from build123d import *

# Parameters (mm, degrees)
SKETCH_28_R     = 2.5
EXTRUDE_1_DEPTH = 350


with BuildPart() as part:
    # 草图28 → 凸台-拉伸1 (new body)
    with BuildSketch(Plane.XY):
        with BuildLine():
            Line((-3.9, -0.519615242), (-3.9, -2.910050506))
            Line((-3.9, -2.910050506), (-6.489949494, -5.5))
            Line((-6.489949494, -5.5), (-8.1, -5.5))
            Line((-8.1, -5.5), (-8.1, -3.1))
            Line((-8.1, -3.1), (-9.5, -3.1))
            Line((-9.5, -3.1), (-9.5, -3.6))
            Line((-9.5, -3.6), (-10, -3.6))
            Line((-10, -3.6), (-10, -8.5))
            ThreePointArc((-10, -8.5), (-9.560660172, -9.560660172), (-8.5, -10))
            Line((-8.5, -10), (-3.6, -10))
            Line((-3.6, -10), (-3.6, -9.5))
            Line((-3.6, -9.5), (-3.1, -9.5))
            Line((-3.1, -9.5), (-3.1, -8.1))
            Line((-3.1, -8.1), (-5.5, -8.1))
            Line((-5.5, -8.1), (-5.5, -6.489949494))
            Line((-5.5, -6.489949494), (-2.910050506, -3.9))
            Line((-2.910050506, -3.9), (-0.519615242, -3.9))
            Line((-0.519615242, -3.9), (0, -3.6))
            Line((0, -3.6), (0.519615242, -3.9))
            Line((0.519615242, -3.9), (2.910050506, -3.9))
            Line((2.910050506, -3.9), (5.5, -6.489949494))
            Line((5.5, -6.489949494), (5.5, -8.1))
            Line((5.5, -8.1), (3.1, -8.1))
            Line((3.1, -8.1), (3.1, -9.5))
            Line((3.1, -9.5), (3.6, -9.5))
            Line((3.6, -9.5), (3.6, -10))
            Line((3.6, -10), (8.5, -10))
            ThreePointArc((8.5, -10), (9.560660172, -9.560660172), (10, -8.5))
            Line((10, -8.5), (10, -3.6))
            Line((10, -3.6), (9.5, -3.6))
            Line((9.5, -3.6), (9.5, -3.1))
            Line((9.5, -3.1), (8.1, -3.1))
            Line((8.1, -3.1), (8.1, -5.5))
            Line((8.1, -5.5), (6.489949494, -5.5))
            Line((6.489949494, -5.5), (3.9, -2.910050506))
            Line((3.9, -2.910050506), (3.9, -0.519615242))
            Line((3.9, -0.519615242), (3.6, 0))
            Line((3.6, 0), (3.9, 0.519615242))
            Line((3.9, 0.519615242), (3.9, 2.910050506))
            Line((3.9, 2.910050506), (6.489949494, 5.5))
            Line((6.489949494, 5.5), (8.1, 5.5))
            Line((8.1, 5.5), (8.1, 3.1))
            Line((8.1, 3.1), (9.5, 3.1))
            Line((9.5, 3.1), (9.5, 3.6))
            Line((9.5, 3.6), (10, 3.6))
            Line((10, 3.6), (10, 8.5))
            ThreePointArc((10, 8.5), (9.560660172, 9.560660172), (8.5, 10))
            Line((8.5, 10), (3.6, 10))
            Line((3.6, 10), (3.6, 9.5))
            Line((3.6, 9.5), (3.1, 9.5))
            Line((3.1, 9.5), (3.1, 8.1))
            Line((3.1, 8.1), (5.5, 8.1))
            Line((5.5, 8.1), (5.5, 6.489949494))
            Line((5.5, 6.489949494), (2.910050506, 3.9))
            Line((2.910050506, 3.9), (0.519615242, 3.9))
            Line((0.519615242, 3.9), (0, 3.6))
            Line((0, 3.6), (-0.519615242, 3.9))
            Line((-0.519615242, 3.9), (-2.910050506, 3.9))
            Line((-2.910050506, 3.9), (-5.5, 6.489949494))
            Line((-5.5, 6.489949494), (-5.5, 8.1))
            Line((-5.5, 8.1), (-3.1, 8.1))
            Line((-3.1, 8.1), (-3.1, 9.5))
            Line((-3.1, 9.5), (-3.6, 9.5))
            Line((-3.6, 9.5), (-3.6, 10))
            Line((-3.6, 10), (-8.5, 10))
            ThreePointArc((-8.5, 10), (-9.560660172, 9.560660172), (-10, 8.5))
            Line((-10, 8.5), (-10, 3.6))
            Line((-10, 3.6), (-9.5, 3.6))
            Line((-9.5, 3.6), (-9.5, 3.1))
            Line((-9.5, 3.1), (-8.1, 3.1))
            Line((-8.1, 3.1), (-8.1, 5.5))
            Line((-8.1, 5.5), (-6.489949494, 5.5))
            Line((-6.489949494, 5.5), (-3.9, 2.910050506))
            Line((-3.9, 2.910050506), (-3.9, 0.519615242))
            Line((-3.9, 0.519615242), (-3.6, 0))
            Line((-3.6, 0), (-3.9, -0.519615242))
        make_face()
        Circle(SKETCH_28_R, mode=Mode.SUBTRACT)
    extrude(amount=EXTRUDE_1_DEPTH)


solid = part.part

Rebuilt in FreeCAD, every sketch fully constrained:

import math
import FreeCAD as App
import Part
import Sketcher
Q = App.Units.Quantity

doc = App.newDocument("Part")
body = doc.addObject("PartDesign::Body", "Body")

# Sketch on XY plane
sketch1 = doc.addObject("Sketcher::SketchObject", "Sketch")
body.addObject(sketch1)
sketch1.AttachmentSupport = (doc.XY_Plane, [""])
sketch1.MapMode = "FlatFace"
sketch1.addGeometry([
    Part.LineSegment(App.Vector(-3.9, -0.519615, 0), App.Vector(-3.9, -2.910051, 0)),  # 0
    Part.LineSegment(App.Vector(-3.9, -2.910051, 0), App.Vector(-6.489949, -5.5, 0)),  # 1
    Part.LineSegment(App.Vector(-6.489949, -5.5, 0), App.Vector(-8.1, -5.5, 0)),  # 2
    Part.LineSegment(App.Vector(-8.1, -5.5, 0), App.Vector(-8.1, -3.1, 0)),  # 3
    Part.LineSegment(App.Vector(-8.1, -3.1, 0), App.Vector(-9.5, -3.1, 0)),  # 4
    Part.LineSegment(App.Vector(-9.5, -3.1, 0), App.Vector(-9.5, -3.6, 0)),  # 5
    Part.LineSegment(App.Vector(-9.5, -3.6, 0), App.Vector(-10, -3.6, 0)),  # 6
    Part.LineSegment(App.Vector(-10, -3.6, 0), App.Vector(-10, -8.5, 0)),  # 7
    Part.ArcOfCircle(Part.Circle(App.Vector(-8.5, -8.5, 0), App.Vector(0, 0, 1), 1.5), math.radians(180), math.radians(270)),  # 8
    Part.LineSegment(App.Vector(-8.5, -10, 0), App.Vector(-3.6, -10, 0)),  # 9
    Part.LineSegment(App.Vector(-3.6, -10, 0), App.Vector(-3.6, -9.5, 0)),  # 10
    Part.LineSegment(App.Vector(-3.6, -9.5, 0), App.Vector(-3.1, -9.5, 0)),  # 11
    Part.LineSegment(App.Vector(-3.1, -9.5, 0), App.Vector(-3.1, -8.1, 0)),  # 12
    Part.LineSegment(App.Vector(-3.1, -8.1, 0), App.Vector(-5.5, -8.1, 0)),  # 13
    Part.LineSegment(App.Vector(-5.5, -8.1, 0), App.Vector(-5.5, -6.489949, 0)),  # 14
    Part.LineSegment(App.Vector(-5.5, -6.489949, 0), App.Vector(-2.910051, -3.9, 0)),  # 15
    Part.LineSegment(App.Vector(-2.910051, -3.9, 0), App.Vector(-0.519615, -3.9, 0)),  # 16
    Part.LineSegment(App.Vector(-0.519615, -3.9, 0), App.Vector(0, -3.6, 0)),  # 17
    Part.LineSegment(App.Vector(0, -3.6, 0), App.Vector(0.519615, -3.9, 0)),  # 18
    Part.LineSegment(App.Vector(0.519615, -3.9, 0), App.Vector(2.910051, -3.9, 0)),  # 19
    Part.LineSegment(App.Vector(2.910051, -3.9, 0), App.Vector(5.5, -6.489949, 0)),  # 20
    Part.LineSegment(App.Vector(5.5, -6.489949, 0), App.Vector(5.5, -8.1, 0)),  # 21
    Part.LineSegment(App.Vector(5.5, -8.1, 0), App.Vector(3.1, -8.1, 0)),  # 22
    Part.LineSegment(App.Vector(3.1, -8.1, 0), App.Vector(3.1, -9.5, 0)),  # 23
    Part.LineSegment(App.Vector(3.1, -9.5, 0), App.Vector(3.6, -9.5, 0)),  # 24
    Part.LineSegment(App.Vector(3.6, -9.5, 0), App.Vector(3.6, -10, 0)),  # 25
    Part.LineSegment(App.Vector(3.6, -10, 0), App.Vector(8.5, -10, 0)),  # 26
    Part.ArcOfCircle(Part.Circle(App.Vector(8.5, -8.5, 0), App.Vector(0, 0, 1), 1.5), math.radians(-90), math.radians(0)),  # 27
    Part.LineSegment(App.Vector(10, -8.5, 0), App.Vector(10, -3.6, 0)),  # 28
    Part.LineSegment(App.Vector(10, -3.6, 0), App.Vector(9.5, -3.6, 0)),  # 29
    Part.LineSegment(App.Vector(9.5, -3.6, 0), App.Vector(9.5, -3.1, 0)),  # 30
    Part.LineSegment(App.Vector(9.5, -3.1, 0), App.Vector(8.1, -3.1, 0)),  # 31
    Part.LineSegment(App.Vector(8.1, -3.1, 0), App.Vector(8.1, -5.5, 0)),  # 32
    Part.LineSegment(App.Vector(8.1, -5.5, 0), App.Vector(6.489949, -5.5, 0)),  # 33
    Part.LineSegment(App.Vector(6.489949, -5.5, 0), App.Vector(3.9, -2.910051, 0)),  # 34
    Part.LineSegment(App.Vector(3.9, -2.910051, 0), App.Vector(3.9, -0.519615, 0)),  # 35
    Part.LineSegment(App.Vector(3.9, -0.519615, 0), App.Vector(3.6, 0, 0)),  # 36
    Part.LineSegment(App.Vector(3.6, 0, 0), App.Vector(3.9, 0.519615, 0)),  # 37
    Part.LineSegment(App.Vector(3.9, 0.519615, 0), App.Vector(3.9, 2.910051, 0)),  # 38
    Part.LineSegment(App.Vector(3.9, 2.910051, 0), App.Vector(6.489949, 5.5, 0)),  # 39
    Part.LineSegment(App.Vector(6.489949, 5.5, 0), App.Vector(8.1, 5.5, 0)),  # 40
    Part.LineSegment(App.Vector(8.1, 5.5, 0), App.Vector(8.1, 3.1, 0)),  # 41
    Part.LineSegment(App.Vector(8.1, 3.1, 0), App.Vector(9.5, 3.1, 0)),  # 42
    Part.LineSegment(App.Vector(9.5, 3.1, 0), App.Vector(9.5, 3.6, 0)),  # 43
    Part.LineSegment(App.Vector(9.5, 3.6, 0), App.Vector(10, 3.6, 0)),  # 44
    Part.LineSegment(App.Vector(10, 3.6, 0), App.Vector(10, 8.5, 0)),  # 45
    Part.ArcOfCircle(Part.Circle(App.Vector(8.5, 8.5, 0), App.Vector(0, 0, 1), 1.5), math.radians(0), math.radians(90)),  # 46
    Part.LineSegment(App.Vector(8.5, 10, 0), App.Vector(3.6, 10, 0)),  # 47
    Part.LineSegment(App.Vector(3.6, 10, 0), App.Vector(3.6, 9.5, 0)),  # 48
    Part.LineSegment(App.Vector(3.6, 9.5, 0), App.Vector(3.1, 9.5, 0)),  # 49
    Part.LineSegment(App.Vector(3.1, 9.5, 0), App.Vector(3.1, 8.1, 0)),  # 50
    Part.LineSegment(App.Vector(3.1, 8.1, 0), App.Vector(5.5, 8.1, 0)),  # 51
    Part.LineSegment(App.Vector(5.5, 8.1, 0), App.Vector(5.5, 6.489949, 0)),  # 52
    Part.LineSegment(App.Vector(5.5, 6.489949, 0), App.Vector(2.910051, 3.9, 0)),  # 53
    Part.LineSegment(App.Vector(2.910051, 3.9, 0), App.Vector(0.519615, 3.9, 0)),  # 54
    Part.LineSegment(App.Vector(0.519615, 3.9, 0), App.Vector(0, 3.6, 0)),  # 55
    Part.LineSegment(App.Vector(0, 3.6, 0), App.Vector(-0.519615, 3.9, 0)),  # 56
    Part.LineSegment(App.Vector(-0.519615, 3.9, 0), App.Vector(-2.910051, 3.9, 0)),  # 57
    Part.LineSegment(App.Vector(-2.910051, 3.9, 0), App.Vector(-5.5, 6.489949, 0)),  # 58
    Part.LineSegment(App.Vector(-5.5, 6.489949, 0), App.Vector(-5.5, 8.1, 0)),  # 59
    Part.LineSegment(App.Vector(-5.5, 8.1, 0), App.Vector(-3.1, 8.1, 0)),  # 60
    Part.LineSegment(App.Vector(-3.1, 8.1, 0), App.Vector(-3.1, 9.5, 0)),  # 61
    Part.LineSegment(App.Vector(-3.1, 9.5, 0), App.Vector(-3.6, 9.5, 0)),  # 62
    Part.LineSegment(App.Vector(-3.6, 9.5, 0), App.Vector(-3.6, 10, 0)),  # 63
    Part.LineSegment(App.Vector(-3.6, 10, 0), App.Vector(-8.5, 10, 0)),  # 64
    Part.ArcOfCircle(Part.Circle(App.Vector(-8.5, 8.5, 0), App.Vector(0, 0, 1), 1.5), math.radians(90), math.radians(180)),  # 65
    Part.LineSegment(App.Vector(-10, 8.5, 0), App.Vector(-10, 3.6, 0)),  # 66
    Part.LineSegment(App.Vector(-10, 3.6, 0), App.Vector(-9.5, 3.6, 0)),  # 67
    Part.LineSegment(App.Vector(-9.5, 3.6, 0), App.Vector(-9.5, 3.1, 0)),  # 68
    Part.LineSegment(App.Vector(-9.5, 3.1, 0), App.Vector(-8.1, 3.1, 0)),  # 69
    Part.LineSegment(App.Vector(-8.1, 3.1, 0), App.Vector(-8.1, 5.5, 0)),  # 70
    Part.LineSegment(App.Vector(-8.1, 5.5, 0), App.Vector(-6.489949, 5.5, 0)),  # 71
    Part.LineSegment(App.Vector(-6.489949, 5.5, 0), App.Vector(-3.9, 2.910051, 0)),  # 72
    Part.LineSegment(App.Vector(-3.9, 2.910051, 0), App.Vector(-3.9, 0.519615, 0)),  # 73
    Part.LineSegment(App.Vector(-3.9, 0.519615, 0), App.Vector(-3.6, 0, 0)),  # 74
    Part.LineSegment(App.Vector(-3.6, 0, 0), App.Vector(-3.9, -0.519615, 0)),  # 75
    Part.Circle(App.Vector(0, 0, 0), App.Vector(0, 0, 1), 2.5),  # 76
], False)
sketch1.addConstraint([
    Sketcher.Constraint("Coincident", 0, 2, 1, 1),
    Sketcher.Constraint("Coincident", 1, 2, 2, 1),
    Sketcher.Constraint("Coincident", 2, 2, 3, 1),
    Sketcher.Constraint("Coincident", 3, 2, 4, 1),
    Sketcher.Constraint("Coincident", 4, 2, 5, 1),
    Sketcher.Constraint("Coincident", 5, 2, 6, 1),
    Sketcher.Constraint("Coincident", 6, 2, 7, 1),
    Sketcher.Constraint("Tangent", 7, 2, 8, 1),
    Sketcher.Constraint("Tangent", 8, 2, 9, 1),
    Sketcher.Constraint("Coincident", 9, 2, 10, 1),
    Sketcher.Constraint("Coincident", 10, 2, 11, 1),
    Sketcher.Constraint("Coincident", 11, 2, 12, 1),
    Sketcher.Constraint("Coincident", 12, 2, 13, 1),
    Sketcher.Constraint("Coincident", 13, 2, 14, 1),
    Sketcher.Constraint("Coincident", 14, 2, 15, 1),
    Sketcher.Constraint("Coincident", 15, 2, 16, 1),
    Sketcher.Constraint("Coincident", 16, 2, 17, 1),
    Sketcher.Constraint("Coincident", 17, 2, 18, 1),
    Sketcher.Constraint("Coincident", 18, 2, 19, 1),
    Sketcher.Constraint("Coincident", 19, 2, 20, 1),
    Sketcher.Constraint("Coincident", 20, 2, 21, 1),
    Sketcher.Constraint("Coincident", 21, 2, 22, 1),
    Sketcher.Constraint("Coincident", 22, 2, 23, 1),
    Sketcher.Constraint("Coincident", 23, 2, 24, 1),
    Sketcher.Constraint("Coincident", 24, 2, 25, 1),
    Sketcher.Constraint("Coincident", 25, 2, 26, 1),
    Sketcher.Constraint("Tangent", 26, 2, 27, 1),
    Sketcher.Constraint("Tangent", 27, 2, 28, 1),
    Sketcher.Constraint("Coincident", 28, 2, 29, 1),
    Sketcher.Constraint("Coincident", 29, 2, 30, 1),
    Sketcher.Constraint("Coincident", 30, 2, 31, 1),
    Sketcher.Constraint("Coincident", 31, 2, 32, 1),
    Sketcher.Constraint("Coincident", 32, 2, 33, 1),
    Sketcher.Constraint("Coincident", 33, 2, 34, 1),
    Sketcher.Constraint("Coincident", 34, 2, 35, 1),
    Sketcher.Constraint("Coincident", 35, 2, 36, 1),
    Sketcher.Constraint("Coincident", 36, 2, 37, 1),
    Sketcher.Constraint("Coincident", 37, 2, 38, 1),
    Sketcher.Constraint("Coincident", 38, 2, 39, 1),
    Sketcher.Constraint("Coincident", 39, 2, 40, 1),
    Sketcher.Constraint("Coincident", 40, 2, 41, 1),
    Sketcher.Constraint("Coincident", 41, 2, 42, 1),
    Sketcher.Constraint("Coincident", 42, 2, 43, 1),
    Sketcher.Constraint("Coincident", 43, 2, 44, 1),
    Sketcher.Constraint("Coincident", 44, 2, 45, 1),
    Sketcher.Constraint("Tangent", 45, 2, 46, 1),
    Sketcher.Constraint("Tangent", 46, 2, 47, 1),
    Sketcher.Constraint("Coincident", 47, 2, 48, 1),
    Sketcher.Constraint("Coincident", 48, 2, 49, 1),
    Sketcher.Constraint("Coincident", 49, 2, 50, 1),
    Sketcher.Constraint("Coincident", 50, 2, 51, 1),
    Sketcher.Constraint("Coincident", 51, 2, 52, 1),
    Sketcher.Constraint("Coincident", 52, 2, 53, 1),
    Sketcher.Constraint("Coincident", 53, 2, 54, 1),
    Sketcher.Constraint("Coincident", 54, 2, 55, 1),
    Sketcher.Constraint("Coincident", 55, 2, 56, 1),
    Sketcher.Constraint("Coincident", 56, 2, 57, 1),
    Sketcher.Constraint("Coincident", 57, 2, 58, 1),
    Sketcher.Constraint("Coincident", 58, 2, 59, 1),
    Sketcher.Constraint("Coincident", 59, 2, 60, 1),
    Sketcher.Constraint("Coincident", 60, 2, 61, 1),
    Sketcher.Constraint("Coincident", 61, 2, 62, 1),
    Sketcher.Constraint("Coincident", 62, 2, 63, 1),
    Sketcher.Constraint("Coincident", 63, 2, 64, 1),
    Sketcher.Constraint("Tangent", 64, 2, 65, 1),
    Sketcher.Constraint("Tangent", 65, 2, 66, 1),
    Sketcher.Constraint("Coincident", 66, 2, 67, 1),
    Sketcher.Constraint("Coincident", 67, 2, 68, 1),
    Sketcher.Constraint("Coincident", 68, 2, 69, 1),
    Sketcher.Constraint("Coincident", 69, 2, 70, 1),
    Sketcher.Constraint("Coincident", 70, 2, 71, 1),
    Sketcher.Constraint("Coincident", 71, 2, 72, 1),
    Sketcher.Constraint("Coincident", 72, 2, 73, 1),
    Sketcher.Constraint("Coincident", 73, 2, 74, 1),
    Sketcher.Constraint("Coincident", 74, 2, 75, 1),
    Sketcher.Constraint("Coincident", 75, 2, 0, 1),
    Sketcher.Constraint("Vertical", 0),
    Sketcher.Constraint("Horizontal", 2),
    Sketcher.Constraint("Vertical", 3),
    Sketcher.Constraint("Horizontal", 4),
    Sketcher.Constraint("Vertical", 5),
    Sketcher.Constraint("Horizontal", 6),
    Sketcher.Constraint("Vertical", 7),
    Sketcher.Constraint("Horizontal", 9),
    Sketcher.Constraint("Vertical", 10),
    Sketcher.Constraint("Horizontal", 11),
    Sketcher.Constraint("Vertical", 12),
    Sketcher.Constraint("Horizontal", 13),
    Sketcher.Constraint("Vertical", 14),
    Sketcher.Constraint("Horizontal", 16),
    Sketcher.Constraint("Horizontal", 19),
    Sketcher.Constraint("Vertical", 21),
    Sketcher.Constraint("Horizontal", 22),
    Sketcher.Constraint("Vertical", 23),
    Sketcher.Constraint("Horizontal", 24),
    Sketcher.Constraint("Vertical", 25),
    Sketcher.Constraint("Horizontal", 26),
    Sketcher.Constraint("Vertical", 28),
    Sketcher.Constraint("Horizontal", 29),
    Sketcher.Constraint("Vertical", 30),
    Sketcher.Constraint("Horizontal", 31),
    Sketcher.Constraint("Vertical", 32),
    Sketcher.Constraint("Horizontal", 33),
    Sketcher.Constraint("Vertical", 35),
    Sketcher.Constraint("Vertical", 38),
    Sketcher.Constraint("Horizontal", 40),
    Sketcher.Constraint("Vertical", 41),
    Sketcher.Constraint("Horizontal", 42),
    Sketcher.Constraint("Vertical", 43),
    Sketcher.Constraint("Horizontal", 44),
    Sketcher.Constraint("Vertical", 45),
    Sketcher.Constraint("Horizontal", 47),
    Sketcher.Constraint("Vertical", 48),
    Sketcher.Constraint("Horizontal", 49),
    Sketcher.Constraint("Vertical", 50),
    Sketcher.Constraint("Horizontal", 51),
    Sketcher.Constraint("Vertical", 52),
    Sketcher.Constraint("Horizontal", 54),
    Sketcher.Constraint("Horizontal", 57),
    Sketcher.Constraint("Vertical", 59),
    Sketcher.Constraint("Horizontal", 60),
    Sketcher.Constraint("Vertical", 61),
    Sketcher.Constraint("Horizontal", 62),
    Sketcher.Constraint("Vertical", 63),
    Sketcher.Constraint("Horizontal", 64),
    Sketcher.Constraint("Vertical", 66),
    Sketcher.Constraint("Horizontal", 67),
    Sketcher.Constraint("Vertical", 68),
    Sketcher.Constraint("Horizontal", 69),
    Sketcher.Constraint("Vertical", 70),
    Sketcher.Constraint("Horizontal", 71),
    Sketcher.Constraint("Vertical", 73),
    Sketcher.Constraint("Coincident", 76, 3, -1, 1),
    Sketcher.Constraint("Equal", 8, 27),
    Sketcher.Constraint("Equal", 27, 46),
    Sketcher.Constraint("Equal", 46, 65),
    Sketcher.Constraint("Symmetric", 8, 3, 46, 3, -1, 1),
    Sketcher.Constraint("Symmetric", 27, 3, 65, 3, -1, 1),
    Sketcher.Constraint("Symmetric", 0, 2, 38, 2, -1, 1),
    Sketcher.Constraint("Symmetric", 1, 2, 39, 2, -1, 1),
    Sketcher.Constraint("Symmetric", 3, 2, 41, 2, -1, 1),
    Sketcher.Constraint("Symmetric", 5, 2, 43, 2, -1, 1),
    Sketcher.Constraint("Symmetric", 10, 2, 48, 2, -1, 1),
    Sketcher.Constraint("Symmetric", 12, 2, 50, 2, -1, 1),
    Sketcher.Constraint("Symmetric", 14, 2, 52, 2, -1, 1),
    Sketcher.Constraint("Symmetric", 15, 2, 53, 2, -1, 1),
    Sketcher.Constraint("Symmetric", 17, 2, 55, 2, -1, 1),
    Sketcher.Constraint("Symmetric", 18, 2, 56, 2, -1, 1),
    Sketcher.Constraint("Symmetric", 20, 2, 58, 2, -1, 1),
    Sketcher.Constraint("Symmetric", 22, 2, 60, 2, -1, 1),
    Sketcher.Constraint("Symmetric", 24, 2, 62, 2, -1, 1),
    Sketcher.Constraint("Symmetric", 29, 2, 67, 2, -1, 1),
    Sketcher.Constraint("Symmetric", 31, 2, 69, 2, -1, 1),
    Sketcher.Constraint("Symmetric", 33, 2, 71, 2, -1, 1),
    Sketcher.Constraint("Symmetric", 34, 2, 72, 2, -1, 1),
    Sketcher.Constraint("Symmetric", 36, 2, 74, 2, -1, 1),
    Sketcher.Constraint("Symmetric", 8, 3, 27, 3, -2),
    Sketcher.Constraint("Symmetric", 16, 2, 18, 2, -2),
    Sketcher.Constraint("Symmetric", 14, 2, 20, 2, -2),
    Sketcher.Constraint("Symmetric", 12, 2, 22, 2, -2),
    Sketcher.Constraint("Symmetric", 10, 2, 24, 2, -2),
    Sketcher.Constraint("Symmetric", 5, 2, 29, 2, -2),
    Sketcher.Constraint("Symmetric", 3, 2, 31, 2, -2),
    Sketcher.Constraint("Symmetric", 1, 2, 33, 2, -2),
    Sketcher.Constraint("Symmetric", 0, 2, 34, 2, -2),
    Sketcher.Constraint("PointOnObject", 17, 2, -2),
    Sketcher.Constraint("PointOnObject", 36, 2, -1),
    Sketcher.Constraint("Parallel", 1, 15),
    Sketcher.Constraint("Perpendicular", 15, 20),
    Sketcher.Constraint("Parallel", 20, 34),
    Sketcher.Constraint("Perpendicular", 17, 36),
    Sketcher.Constraint("Perpendicular", 18, 37),
    Sketcher.Constraint("Perpendicular", 36, 55),
    Sketcher.Constraint("Perpendicular", 53, 58),
    Sketcher.Constraint("Perpendicular", 55, 74),
    Sketcher.Constraint("Perpendicular", 56, 75),
    Sketcher.Constraint("Horizontal", 6, 2, 17, 2),
    Sketcher.Constraint("Vertical", 25, 2, 36, 2),
    Sketcher.Constraint("Equal", 6, 11),
    Sketcher.Constraint("Equal", 57, 0),
    Sketcher.Constraint("Equal", 60, 3),
    Sketcher.Constraint("Equal", 67, 5),
    Sketcher.Constraint("Equal", 64, 7),
    Sketcher.Constraint("Equal", 5, 10),
    Sketcher.Constraint("Equal", 69, 12),
    Sketcher.Constraint("Equal", 71, 14),
    Sketcher.Constraint("Equal", 1, 15),
    Sketcher.Constraint("Diameter", 76, Q("5 mm")),
    Sketcher.Constraint("Radius", 8, Q("1.5 mm")),
    Sketcher.Constraint("Angle", 17, Q("30 deg")),
    Sketcher.Constraint("DistanceX", 4, 2, 4, 1, Q("1.4 mm")),
    Sketcher.Constraint("DistanceX", 6, 2, 6, 1, Q("0.5 mm")),
    Sketcher.Constraint("DistanceX", 9, 1, 9, 2, Q("4.9 mm")),
    Sketcher.Constraint("DistanceX", 13, 2, 13, 1, Q("2.4 mm")),
    Sketcher.Constraint("DistanceX", 6, 2, -1, 1, Q("10 mm")),
    Sketcher.Constraint("Distance", 17, Q("0.6 mm")),
    Sketcher.Constraint("DistanceX", 2, 2, 2, 1, Q("1.610051 mm")),
])
pad1 = doc.addObject("PartDesign::Pad", "Pad")
body.addObject(pad1)
pad1.Profile = sketch1
pad1.Length = 350

doc.recompute()
